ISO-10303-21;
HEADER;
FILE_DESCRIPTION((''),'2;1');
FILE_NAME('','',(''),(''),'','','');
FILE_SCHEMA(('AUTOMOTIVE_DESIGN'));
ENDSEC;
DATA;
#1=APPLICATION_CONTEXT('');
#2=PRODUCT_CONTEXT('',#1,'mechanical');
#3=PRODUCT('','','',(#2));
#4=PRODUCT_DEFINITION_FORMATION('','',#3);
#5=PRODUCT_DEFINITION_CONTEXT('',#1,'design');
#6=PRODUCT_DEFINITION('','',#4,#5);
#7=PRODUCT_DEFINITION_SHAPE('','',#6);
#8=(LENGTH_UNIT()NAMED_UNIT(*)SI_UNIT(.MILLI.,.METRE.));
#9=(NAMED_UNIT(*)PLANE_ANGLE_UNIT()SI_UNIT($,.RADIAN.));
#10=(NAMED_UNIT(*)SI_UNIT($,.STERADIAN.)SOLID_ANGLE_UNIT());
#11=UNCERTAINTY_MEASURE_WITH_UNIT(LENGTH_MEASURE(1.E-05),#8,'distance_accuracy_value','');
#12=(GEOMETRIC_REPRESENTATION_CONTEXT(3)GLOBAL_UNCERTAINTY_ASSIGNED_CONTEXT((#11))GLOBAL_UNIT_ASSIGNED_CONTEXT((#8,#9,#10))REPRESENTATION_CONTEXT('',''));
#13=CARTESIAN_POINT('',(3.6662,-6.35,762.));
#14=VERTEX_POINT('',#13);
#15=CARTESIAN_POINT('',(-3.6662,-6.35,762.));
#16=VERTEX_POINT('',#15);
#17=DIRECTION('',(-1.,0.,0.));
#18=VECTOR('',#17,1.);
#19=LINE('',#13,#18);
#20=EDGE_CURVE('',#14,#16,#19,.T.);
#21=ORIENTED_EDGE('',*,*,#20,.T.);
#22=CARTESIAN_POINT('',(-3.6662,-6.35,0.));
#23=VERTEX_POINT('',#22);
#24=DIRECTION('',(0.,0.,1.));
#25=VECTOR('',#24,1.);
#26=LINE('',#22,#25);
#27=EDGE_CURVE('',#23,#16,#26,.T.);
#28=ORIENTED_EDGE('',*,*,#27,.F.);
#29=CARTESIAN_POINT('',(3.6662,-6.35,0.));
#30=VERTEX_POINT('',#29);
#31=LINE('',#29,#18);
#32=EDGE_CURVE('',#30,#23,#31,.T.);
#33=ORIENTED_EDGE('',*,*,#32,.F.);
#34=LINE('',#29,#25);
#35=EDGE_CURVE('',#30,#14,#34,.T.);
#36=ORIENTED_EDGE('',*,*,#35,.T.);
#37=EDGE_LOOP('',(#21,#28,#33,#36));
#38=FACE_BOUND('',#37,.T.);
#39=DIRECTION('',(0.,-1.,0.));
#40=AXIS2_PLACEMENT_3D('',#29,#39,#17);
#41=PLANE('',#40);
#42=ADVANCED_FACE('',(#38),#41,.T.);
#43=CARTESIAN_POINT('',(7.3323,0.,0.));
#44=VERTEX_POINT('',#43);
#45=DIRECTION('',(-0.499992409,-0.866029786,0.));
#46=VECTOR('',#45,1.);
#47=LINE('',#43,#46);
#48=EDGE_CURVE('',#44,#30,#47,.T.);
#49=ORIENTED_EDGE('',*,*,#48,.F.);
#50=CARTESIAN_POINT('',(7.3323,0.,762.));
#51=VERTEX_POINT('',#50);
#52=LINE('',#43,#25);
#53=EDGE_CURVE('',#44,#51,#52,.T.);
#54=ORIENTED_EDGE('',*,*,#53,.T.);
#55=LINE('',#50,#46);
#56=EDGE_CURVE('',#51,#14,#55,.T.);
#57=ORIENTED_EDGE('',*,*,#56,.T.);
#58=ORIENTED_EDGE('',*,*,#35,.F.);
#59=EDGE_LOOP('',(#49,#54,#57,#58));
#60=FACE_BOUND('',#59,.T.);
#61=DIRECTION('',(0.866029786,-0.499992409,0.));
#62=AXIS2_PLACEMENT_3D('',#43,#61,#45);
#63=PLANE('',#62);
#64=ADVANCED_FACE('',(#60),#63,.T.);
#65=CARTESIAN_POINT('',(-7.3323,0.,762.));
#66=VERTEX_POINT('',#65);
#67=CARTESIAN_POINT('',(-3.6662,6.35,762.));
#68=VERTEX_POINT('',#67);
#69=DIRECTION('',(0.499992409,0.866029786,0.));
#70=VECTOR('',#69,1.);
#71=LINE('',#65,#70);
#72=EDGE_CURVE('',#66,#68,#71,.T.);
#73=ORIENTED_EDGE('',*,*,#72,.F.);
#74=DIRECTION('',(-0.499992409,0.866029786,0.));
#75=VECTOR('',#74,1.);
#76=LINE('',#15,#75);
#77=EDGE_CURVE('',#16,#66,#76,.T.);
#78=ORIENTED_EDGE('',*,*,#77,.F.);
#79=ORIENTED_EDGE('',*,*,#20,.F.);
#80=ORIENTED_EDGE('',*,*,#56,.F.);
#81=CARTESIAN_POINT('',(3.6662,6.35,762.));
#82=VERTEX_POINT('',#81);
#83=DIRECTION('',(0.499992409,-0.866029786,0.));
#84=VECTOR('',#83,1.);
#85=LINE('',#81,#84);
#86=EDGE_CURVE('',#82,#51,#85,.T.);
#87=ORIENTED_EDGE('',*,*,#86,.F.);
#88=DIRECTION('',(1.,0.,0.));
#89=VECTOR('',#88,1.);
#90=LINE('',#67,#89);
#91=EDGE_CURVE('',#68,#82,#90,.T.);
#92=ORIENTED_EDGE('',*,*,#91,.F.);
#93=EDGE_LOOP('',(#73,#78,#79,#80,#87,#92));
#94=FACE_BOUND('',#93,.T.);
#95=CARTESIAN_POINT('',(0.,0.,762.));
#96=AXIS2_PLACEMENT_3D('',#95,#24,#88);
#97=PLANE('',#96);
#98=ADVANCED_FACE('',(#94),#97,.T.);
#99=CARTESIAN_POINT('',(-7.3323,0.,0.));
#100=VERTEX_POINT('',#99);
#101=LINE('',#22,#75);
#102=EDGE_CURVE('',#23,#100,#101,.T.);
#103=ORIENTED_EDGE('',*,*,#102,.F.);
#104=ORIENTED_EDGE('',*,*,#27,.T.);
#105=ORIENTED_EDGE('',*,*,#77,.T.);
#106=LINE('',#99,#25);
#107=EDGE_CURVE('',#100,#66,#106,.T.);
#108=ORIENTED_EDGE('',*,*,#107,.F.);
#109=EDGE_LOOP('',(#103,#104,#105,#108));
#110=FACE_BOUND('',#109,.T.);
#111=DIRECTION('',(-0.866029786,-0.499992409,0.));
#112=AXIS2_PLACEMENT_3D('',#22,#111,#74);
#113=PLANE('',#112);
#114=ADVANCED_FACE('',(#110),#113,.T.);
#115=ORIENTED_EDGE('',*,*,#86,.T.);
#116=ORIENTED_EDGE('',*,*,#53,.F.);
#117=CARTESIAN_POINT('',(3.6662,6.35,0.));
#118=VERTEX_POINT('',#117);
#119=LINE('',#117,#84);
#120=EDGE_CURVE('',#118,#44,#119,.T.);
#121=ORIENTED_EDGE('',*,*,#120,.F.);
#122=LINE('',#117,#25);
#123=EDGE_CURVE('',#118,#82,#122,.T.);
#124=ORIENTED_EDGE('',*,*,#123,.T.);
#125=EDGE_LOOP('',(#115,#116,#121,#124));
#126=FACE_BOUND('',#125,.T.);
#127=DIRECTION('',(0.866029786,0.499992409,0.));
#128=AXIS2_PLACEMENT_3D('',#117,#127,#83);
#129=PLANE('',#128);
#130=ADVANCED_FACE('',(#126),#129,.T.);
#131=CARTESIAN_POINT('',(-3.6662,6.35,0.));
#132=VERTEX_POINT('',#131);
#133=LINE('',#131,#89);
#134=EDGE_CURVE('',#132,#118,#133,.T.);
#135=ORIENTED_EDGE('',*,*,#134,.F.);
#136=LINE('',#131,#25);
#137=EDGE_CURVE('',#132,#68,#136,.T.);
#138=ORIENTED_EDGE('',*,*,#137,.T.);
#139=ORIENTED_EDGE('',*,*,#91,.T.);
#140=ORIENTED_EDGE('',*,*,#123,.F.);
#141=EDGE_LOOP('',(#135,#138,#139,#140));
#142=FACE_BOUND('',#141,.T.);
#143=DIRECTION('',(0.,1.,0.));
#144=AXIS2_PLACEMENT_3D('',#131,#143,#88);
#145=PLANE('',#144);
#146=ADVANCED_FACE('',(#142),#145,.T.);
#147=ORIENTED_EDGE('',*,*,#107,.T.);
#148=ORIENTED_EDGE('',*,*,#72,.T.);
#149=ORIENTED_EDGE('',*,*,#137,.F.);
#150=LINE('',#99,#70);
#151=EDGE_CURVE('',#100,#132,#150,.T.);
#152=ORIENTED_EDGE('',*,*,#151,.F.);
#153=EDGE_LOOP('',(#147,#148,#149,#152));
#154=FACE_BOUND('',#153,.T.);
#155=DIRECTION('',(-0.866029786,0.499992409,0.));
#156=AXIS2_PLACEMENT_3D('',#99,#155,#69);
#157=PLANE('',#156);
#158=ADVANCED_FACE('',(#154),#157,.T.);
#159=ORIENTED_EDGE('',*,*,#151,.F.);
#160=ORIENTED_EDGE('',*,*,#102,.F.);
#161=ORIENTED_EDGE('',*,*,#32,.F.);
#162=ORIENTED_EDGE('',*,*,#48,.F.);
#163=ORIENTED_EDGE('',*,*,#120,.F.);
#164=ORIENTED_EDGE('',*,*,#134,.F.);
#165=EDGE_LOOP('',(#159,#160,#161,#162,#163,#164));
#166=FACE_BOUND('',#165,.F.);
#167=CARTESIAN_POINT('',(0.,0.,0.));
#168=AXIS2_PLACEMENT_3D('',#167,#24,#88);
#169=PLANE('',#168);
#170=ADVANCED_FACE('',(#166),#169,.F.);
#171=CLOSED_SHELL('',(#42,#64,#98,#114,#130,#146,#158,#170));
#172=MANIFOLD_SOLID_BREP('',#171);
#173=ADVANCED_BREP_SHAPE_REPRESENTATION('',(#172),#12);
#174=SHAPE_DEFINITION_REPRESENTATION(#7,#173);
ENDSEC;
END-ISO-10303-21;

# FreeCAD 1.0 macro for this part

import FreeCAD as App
import Part
import Sketcher
Q = App.Units.Quantity


def add_polygon(sketch, points):
    """Adds a closed chain of lines whose ends are joined by coincident constraints."""
    first, n = sketch.GeometryCount, len(points)
    for a, b in zip(points, points[1:] + points[:1]):
        sketch.addGeometry(Part.LineSegment(App.Vector(*a, 0), App.Vector(*b, 0)), False)
    for i in range(n):
        sketch.addConstraint(Sketcher.Constraint("Coincident", first + i, 2, first + (i + 1) % n, 1))

doc = App.newDocument("Part")
body = doc.addObject("PartDesign::Body", "Body")

sketch1 = body.newObject("Sketcher::SketchObject", "Sketch")
sketch1.AttachmentSupport = (doc.getObject("XY_Plane"), [""])
sketch1.MapMode = "FlatFace"
add_polygon(sketch1, [(7, 0), (4, 6), (-4, 6), (-7, 0), (-4, -6), (4, -6)])
sketch1.addConstraint([
    Sketcher.Constraint("Horizontal", 1),
    Sketcher.Constraint("Horizontal", 4),
    Sketcher.Constraint("Symmetric", 0, 2, 3, 2, -1, 1),
    Sketcher.Constraint("Symmetric", 2, 2, 5, 2, -1, 1),
    Sketcher.Constraint("PointOnObject", 2, 2, -1),
    Sketcher.Constraint("Parallel", 2, 5),
    Sketcher.Constraint("Vertical", 1, 2, 3, 2),
    Sketcher.Constraint("DistanceY", 3, 2, 1, 2, Q("0.5 in")),
    Sketcher.Constraint("Angle", 0, Q("119.9995 deg")),
    Sketcher.Constraint("DistanceX", 2, 2, 0, 2, Q("0.433 in")),
])
pad1 = body.newObject("PartDesign::Pad", "Pad")
pad1.Profile = sketch1
pad1.Length = Q("30 in")

doc.recompute()
